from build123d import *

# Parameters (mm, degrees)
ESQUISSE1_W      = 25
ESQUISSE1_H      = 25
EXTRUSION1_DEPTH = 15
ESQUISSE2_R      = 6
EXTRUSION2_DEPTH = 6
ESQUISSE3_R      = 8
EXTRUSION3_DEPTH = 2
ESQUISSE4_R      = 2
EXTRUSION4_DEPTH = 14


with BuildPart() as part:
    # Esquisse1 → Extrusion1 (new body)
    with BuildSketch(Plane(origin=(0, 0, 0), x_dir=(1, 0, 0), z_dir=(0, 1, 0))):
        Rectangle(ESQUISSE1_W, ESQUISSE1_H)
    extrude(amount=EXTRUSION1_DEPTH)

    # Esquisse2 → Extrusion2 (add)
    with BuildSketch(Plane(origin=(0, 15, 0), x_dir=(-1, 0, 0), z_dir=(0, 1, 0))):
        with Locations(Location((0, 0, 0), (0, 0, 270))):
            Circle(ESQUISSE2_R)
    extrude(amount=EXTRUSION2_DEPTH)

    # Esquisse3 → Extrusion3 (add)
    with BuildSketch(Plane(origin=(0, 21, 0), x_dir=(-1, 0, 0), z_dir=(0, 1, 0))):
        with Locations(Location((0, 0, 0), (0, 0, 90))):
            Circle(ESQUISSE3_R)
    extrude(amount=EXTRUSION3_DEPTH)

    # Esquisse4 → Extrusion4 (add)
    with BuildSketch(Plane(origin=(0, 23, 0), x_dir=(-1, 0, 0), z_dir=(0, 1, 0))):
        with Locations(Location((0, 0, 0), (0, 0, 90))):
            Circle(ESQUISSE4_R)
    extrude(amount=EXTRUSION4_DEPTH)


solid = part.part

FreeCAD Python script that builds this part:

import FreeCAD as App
import Part
import Sketcher
from FreeCAD import Vector

doc = App.newDocument("Part")
body = doc.addObject("PartDesign::Body", "Body")

# Sketch on XZ plane
sketch1 = doc.addObject("Sketcher::SketchObject", "Sketch")
body.addObject(sketch1)
sketch1.AttachmentSupport = (doc.XZ_Plane, [""])
sketch1.MapMode = "FlatFace"
sketch1.addGeometry([
    Part.LineSegment(Vector(-12, -12, 0), Vector(-12, 12, 0)),
    Part.LineSegment(Vector(-12, 12, 0), Vector(12, 12, 0)),
    Part.LineSegment(Vector(12, 12, 0), Vector(12, -12, 0)),
    Part.LineSegment(Vector(12, -12, 0), Vector(-12, -12, 0)),
], False)
sketch1.addConstraint([
    Sketcher.Constraint("Coincident", 0, 2, 1, 1),
    Sketcher.Constraint("Coincident", 1, 2, 2, 1),
    Sketcher.Constraint("Coincident", 2, 2, 3, 1),
    Sketcher.Constraint("Coincident", 3, 2, 0, 1),
    Sketcher.Constraint("Vertical", 0),
    Sketcher.Constraint("Horizontal", 1),
    Sketcher.Constraint("Vertical", 2),
    Sketcher.Constraint("Horizontal", 3),
    Sketcher.Constraint("Symmetric", 0, 2, 2, 2, -1, 1),
    Sketcher.Constraint("Equal", 3, 0),
    Sketcher.Constraint("DistanceX", 1, 1, 1, 2, 25.0),
])
pad1 = doc.addObject("PartDesign::Pad", "Pad")
body.addObject(pad1)
pad1.Profile = sketch1
pad1.Length = 15
pad1.Reversed = True

# Sketch on XZ plane
sketch2 = doc.addObject("Sketcher::SketchObject", "Sketch001")
body.addObject(sketch2)
sketch2.AttachmentSupport = (doc.XZ_Plane, [""])
sketch2.MapMode = "FlatFace"
sketch2.AttachmentOffset = App.Placement(Vector(0, 0, -15), App.Rotation())
sketch2.addGeometry(Part.Circle(Vector(0, 0, 0), Vector(0, 0, 1), 6), False)
sketch2.addConstraint([
    Sketcher.Constraint("Coincident", 0, 3, -1, 1),
    Sketcher.Constraint("Diameter", 0, 12.0),
])
pad2 = doc.addObject("PartDesign::Pad", "Pad001")
body.addObject(pad2)
pad2.Profile = sketch2
pad2.Length = 6
pad2.Reversed = True

# Sketch on XZ plane
sketch3 = doc.addObject("Sketcher::SketchObject", "Sketch002")
body.addObject(sketch3)
sketch3.AttachmentSupport = (doc.XZ_Plane, [""])
sketch3.MapMode = "FlatFace"
sketch3.AttachmentOffset = App.Placement(Vector(0, 0, -21), App.Rotation())
sketch3.addGeometry(Part.Circle(Vector(0, 0, 0), Vector(0, 0, 1), 8), False)
sketch3.addConstraint([
    Sketcher.Constraint("Coincident", 0, 3, -1, 1),
    Sketcher.Constraint("Diameter", 0, 16.0),
])
pad3 = doc.addObject("PartDesign::Pad", "Pad002")
body.addObject(pad3)
pad3.Profile = sketch3
pad3.Length = 2
pad3.Reversed = True

# Sketch on XZ plane
sketch4 = doc.addObject("Sketcher::SketchObject", "Sketch003")
body.addObject(sketch4)
sketch4.AttachmentSupport = (doc.XZ_Plane, [""])
sketch4.MapMode = "FlatFace"
sketch4.AttachmentOffset = App.Placement(Vector(0, 0, -23), App.Rotation())
sketch4.addGeometry(Part.Circle(Vector(0, 0, 0), Vector(0, 0, 1), 2), False)
sketch4.addConstraint([
    Sketcher.Constraint("Coincident", 0, 3, -1, 1),
    Sketcher.Constraint("Diameter", 0, 4.0),
])
pad4 = doc.addObject("PartDesign::Pad", "Pad003")
body.addObject(pad4)
pad4.Profile = sketch4
pad4.Length = 14
pad4.Reversed = True

doc.recompute()
